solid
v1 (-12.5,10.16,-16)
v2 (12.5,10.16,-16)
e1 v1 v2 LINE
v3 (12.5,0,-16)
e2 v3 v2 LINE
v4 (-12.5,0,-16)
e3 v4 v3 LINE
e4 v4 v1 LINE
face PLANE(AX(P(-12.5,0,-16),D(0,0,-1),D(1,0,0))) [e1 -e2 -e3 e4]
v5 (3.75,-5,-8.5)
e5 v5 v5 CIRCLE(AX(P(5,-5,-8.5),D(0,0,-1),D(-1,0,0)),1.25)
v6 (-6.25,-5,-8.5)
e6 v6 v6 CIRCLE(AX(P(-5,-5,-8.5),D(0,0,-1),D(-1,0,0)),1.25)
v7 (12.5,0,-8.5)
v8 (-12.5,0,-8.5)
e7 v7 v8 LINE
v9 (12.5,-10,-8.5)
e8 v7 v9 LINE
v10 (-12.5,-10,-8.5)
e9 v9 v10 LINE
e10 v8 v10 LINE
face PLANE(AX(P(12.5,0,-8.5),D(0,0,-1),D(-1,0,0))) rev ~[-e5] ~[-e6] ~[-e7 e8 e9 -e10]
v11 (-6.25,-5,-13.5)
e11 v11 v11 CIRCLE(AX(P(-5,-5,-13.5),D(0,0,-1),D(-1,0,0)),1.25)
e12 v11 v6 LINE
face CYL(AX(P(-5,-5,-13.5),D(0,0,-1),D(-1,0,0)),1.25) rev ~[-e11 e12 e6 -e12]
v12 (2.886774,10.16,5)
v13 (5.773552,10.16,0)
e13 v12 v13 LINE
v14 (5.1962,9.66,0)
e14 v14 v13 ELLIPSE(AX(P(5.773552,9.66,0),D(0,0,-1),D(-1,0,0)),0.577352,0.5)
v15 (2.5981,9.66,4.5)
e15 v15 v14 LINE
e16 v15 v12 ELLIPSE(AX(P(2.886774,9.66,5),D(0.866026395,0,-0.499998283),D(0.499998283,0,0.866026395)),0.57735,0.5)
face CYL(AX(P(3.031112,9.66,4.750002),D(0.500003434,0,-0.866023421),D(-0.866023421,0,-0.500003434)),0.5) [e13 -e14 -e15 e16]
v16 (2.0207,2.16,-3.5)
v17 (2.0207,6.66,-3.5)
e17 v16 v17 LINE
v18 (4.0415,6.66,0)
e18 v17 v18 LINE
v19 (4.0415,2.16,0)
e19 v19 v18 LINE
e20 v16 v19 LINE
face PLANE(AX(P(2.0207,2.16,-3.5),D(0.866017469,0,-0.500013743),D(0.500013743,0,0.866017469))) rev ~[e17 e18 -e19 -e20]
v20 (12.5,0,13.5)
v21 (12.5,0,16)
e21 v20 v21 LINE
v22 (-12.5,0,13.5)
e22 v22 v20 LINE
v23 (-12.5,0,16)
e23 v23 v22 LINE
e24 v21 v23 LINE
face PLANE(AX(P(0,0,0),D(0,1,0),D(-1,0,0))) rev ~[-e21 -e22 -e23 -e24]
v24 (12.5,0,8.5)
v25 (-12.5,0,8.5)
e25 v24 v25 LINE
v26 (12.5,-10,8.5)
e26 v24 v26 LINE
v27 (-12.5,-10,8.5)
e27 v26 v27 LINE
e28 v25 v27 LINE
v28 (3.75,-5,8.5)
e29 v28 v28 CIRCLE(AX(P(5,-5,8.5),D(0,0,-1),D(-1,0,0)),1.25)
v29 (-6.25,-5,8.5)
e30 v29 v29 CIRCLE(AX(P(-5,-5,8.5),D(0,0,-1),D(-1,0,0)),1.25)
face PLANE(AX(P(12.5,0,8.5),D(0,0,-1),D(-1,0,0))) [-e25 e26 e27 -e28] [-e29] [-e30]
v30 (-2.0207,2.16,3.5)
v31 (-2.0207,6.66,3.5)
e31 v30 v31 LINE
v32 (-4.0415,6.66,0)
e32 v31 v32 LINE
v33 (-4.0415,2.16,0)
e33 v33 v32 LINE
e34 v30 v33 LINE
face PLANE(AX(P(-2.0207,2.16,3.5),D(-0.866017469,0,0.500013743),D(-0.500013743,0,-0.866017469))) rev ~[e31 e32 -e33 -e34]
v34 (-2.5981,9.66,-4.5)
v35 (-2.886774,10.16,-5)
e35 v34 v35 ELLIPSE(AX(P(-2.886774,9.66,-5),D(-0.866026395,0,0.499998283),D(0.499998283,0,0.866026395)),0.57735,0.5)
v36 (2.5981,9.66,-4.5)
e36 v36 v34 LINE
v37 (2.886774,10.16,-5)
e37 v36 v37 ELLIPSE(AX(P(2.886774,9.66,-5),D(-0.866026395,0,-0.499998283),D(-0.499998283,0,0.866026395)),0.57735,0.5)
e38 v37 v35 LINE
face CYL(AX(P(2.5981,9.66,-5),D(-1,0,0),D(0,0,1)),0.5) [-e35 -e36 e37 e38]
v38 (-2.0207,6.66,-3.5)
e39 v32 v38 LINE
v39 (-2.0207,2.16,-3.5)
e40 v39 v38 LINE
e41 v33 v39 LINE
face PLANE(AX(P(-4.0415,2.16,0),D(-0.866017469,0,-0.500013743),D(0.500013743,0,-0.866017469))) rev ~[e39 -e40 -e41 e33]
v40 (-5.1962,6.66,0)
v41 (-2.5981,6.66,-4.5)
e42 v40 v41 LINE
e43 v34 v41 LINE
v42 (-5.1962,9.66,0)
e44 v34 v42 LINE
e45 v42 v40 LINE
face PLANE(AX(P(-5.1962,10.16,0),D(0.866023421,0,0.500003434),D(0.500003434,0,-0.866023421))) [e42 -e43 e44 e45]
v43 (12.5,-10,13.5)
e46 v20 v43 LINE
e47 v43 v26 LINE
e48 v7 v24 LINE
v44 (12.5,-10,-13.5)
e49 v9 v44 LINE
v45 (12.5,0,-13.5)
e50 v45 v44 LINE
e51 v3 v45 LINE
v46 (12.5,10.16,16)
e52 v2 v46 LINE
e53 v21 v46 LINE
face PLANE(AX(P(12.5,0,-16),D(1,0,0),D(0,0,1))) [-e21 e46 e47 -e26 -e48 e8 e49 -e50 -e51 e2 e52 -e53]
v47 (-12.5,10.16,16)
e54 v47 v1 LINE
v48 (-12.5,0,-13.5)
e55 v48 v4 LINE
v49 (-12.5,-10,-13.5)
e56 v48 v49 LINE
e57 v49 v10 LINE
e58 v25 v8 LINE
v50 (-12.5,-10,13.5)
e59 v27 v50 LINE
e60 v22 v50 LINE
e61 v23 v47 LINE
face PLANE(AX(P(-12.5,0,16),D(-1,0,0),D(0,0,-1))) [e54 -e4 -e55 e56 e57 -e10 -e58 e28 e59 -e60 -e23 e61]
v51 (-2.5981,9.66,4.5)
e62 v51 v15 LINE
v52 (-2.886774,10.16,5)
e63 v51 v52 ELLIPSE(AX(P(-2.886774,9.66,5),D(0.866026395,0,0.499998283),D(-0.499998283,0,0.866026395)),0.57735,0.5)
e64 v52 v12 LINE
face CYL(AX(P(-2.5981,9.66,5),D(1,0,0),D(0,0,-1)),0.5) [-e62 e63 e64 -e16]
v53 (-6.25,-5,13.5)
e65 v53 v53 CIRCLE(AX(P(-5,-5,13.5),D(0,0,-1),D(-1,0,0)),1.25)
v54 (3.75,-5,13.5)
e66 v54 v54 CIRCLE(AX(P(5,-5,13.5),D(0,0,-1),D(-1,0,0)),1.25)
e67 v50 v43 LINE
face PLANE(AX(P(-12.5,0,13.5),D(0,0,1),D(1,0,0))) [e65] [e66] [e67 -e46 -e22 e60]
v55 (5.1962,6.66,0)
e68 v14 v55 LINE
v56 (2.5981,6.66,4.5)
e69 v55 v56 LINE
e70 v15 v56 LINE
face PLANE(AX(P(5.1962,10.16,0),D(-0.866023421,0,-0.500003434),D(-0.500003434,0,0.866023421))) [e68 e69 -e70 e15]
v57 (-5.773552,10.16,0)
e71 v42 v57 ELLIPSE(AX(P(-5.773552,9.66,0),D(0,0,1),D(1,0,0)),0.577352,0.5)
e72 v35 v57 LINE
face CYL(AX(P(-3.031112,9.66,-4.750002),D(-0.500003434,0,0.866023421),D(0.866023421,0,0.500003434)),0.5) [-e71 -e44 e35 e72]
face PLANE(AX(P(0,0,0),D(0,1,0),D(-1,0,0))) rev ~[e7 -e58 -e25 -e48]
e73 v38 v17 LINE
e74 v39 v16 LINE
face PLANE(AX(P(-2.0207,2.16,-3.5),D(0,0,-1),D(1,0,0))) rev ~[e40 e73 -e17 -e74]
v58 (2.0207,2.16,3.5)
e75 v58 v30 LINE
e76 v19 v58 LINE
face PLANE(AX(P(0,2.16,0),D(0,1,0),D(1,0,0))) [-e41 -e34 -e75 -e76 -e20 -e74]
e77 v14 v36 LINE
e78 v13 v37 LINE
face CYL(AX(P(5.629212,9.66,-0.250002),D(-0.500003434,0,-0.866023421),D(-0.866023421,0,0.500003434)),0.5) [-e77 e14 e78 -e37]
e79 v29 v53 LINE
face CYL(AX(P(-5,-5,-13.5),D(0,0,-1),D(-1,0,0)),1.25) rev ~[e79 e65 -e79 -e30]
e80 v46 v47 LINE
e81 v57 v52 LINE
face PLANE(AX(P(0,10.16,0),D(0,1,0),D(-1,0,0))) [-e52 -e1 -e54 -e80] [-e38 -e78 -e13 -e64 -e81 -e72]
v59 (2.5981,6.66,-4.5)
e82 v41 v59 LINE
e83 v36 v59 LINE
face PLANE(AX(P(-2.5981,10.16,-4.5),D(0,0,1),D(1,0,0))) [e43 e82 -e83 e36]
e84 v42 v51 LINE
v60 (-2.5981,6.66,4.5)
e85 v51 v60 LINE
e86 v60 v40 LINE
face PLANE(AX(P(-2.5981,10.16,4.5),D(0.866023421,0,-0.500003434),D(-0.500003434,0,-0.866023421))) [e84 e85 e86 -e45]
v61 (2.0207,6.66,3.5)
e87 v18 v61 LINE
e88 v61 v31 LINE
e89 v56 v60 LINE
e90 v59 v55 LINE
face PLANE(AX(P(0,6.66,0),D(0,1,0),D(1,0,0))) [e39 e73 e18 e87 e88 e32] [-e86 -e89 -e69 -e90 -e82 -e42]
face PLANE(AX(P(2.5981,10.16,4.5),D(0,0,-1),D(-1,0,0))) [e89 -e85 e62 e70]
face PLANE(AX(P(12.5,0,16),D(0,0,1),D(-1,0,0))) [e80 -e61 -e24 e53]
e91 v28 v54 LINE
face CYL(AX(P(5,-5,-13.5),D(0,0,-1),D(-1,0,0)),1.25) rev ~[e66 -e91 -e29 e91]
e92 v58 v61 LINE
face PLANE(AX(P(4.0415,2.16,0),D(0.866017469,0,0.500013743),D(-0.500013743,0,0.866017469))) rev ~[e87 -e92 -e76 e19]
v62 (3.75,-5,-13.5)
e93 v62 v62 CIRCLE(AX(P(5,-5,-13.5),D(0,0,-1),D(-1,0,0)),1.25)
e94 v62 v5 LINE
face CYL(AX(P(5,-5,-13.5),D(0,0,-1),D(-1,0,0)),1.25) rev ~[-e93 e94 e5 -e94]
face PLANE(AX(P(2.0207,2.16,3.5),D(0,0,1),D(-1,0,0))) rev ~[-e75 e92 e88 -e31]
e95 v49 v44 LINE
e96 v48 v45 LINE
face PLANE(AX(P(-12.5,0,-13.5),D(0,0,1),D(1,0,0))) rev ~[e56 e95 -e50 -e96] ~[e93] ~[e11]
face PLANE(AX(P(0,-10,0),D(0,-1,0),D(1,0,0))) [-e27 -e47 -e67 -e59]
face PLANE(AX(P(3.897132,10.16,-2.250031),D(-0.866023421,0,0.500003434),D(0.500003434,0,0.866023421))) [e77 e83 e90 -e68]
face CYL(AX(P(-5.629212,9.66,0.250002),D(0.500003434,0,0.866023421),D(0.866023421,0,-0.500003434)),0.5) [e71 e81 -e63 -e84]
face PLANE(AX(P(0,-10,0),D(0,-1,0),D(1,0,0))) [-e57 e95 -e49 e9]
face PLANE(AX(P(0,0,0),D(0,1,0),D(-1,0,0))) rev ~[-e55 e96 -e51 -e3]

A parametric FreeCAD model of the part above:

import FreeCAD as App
import Part
import Sketcher

V = App.Vector
Q = App.Units.Quantity


def edges_at(feature, points):
    """Names of the edges that pass closest to the given points."""
    edges = feature.Shape.Edges
    near = lambda p: min(range(len(edges)), key=lambda i: edges[i].distToShape(Part.Vertex(*p))[0])
    return sorted({f"Edge{near(p) + 1}" for p in points})

doc = App.newDocument("Part")
params = doc.addObject("Spreadsheet::Sheet", "Params")
for row, (alias, value) in enumerate([
    ("sketch1_width", "25 mm"),
    ("sketch1_height", "32 mm"),
    ("pad1_length", "10.16 mm"),
    ("sketch2_height", "5 mm"),
    ("sketch2_width", "25 mm"),
    ("pad2_length", "10 mm"),
    ("sketch3_diameter", "2.5 mm"),
    ("pocket1_length", "27 mm"),
    ("pocket2_length", "8 mm"),
    ("pad3_length", "4.5 mm"),
    ("fillet_radius", "0.5 mm"),
], start=1):
    params.set(f"A{row}", alias)
    params.set(f"B{row}", "=" + value)
    params.setAlias(f"B{row}", alias)

body = doc.addObject("PartDesign::Body", "Body")

sketch1 = body.newObject("Sketcher::SketchObject", "Sketch")
sketch1.AttachmentSupport = (doc.getObject("XZ_Plane"), [""])
sketch1.MapMode = "FlatFace"
sketch1.addGeometry(Part.LineSegment(V(-12, 16, 0), V(12, 16, 0)), False)
sketch1.addGeometry(Part.LineSegment(V(12, 16, 0), V(12, -16, 0)), False)
sketch1.addGeometry(Part.LineSegment(V(12, -16, 0), V(-12, -16, 0)), False)
sketch1.addGeometry(Part.LineSegment(V(-12, -16, 0), V(-12, 16, 0)), False)
sketch1.addConstraint(Sketcher.Constraint("Coincident", 0, 2, 1, 1))
sketch1.addConstraint(Sketcher.Constraint("Coincident", 1, 2, 2, 1))
sketch1.addConstraint(Sketcher.Constraint("Coincident", 2, 2, 3, 1))
sketch1.addConstraint(Sketcher.Constraint("Coincident", 3, 2, 0, 1))
sketch1.addConstraint(Sketcher.Constraint("Horizontal", 0))
sketch1.addConstraint(Sketcher.Constraint("Vertical", 1))
sketch1.addConstraint(Sketcher.Constraint("Horizontal", 2))
sketch1.addConstraint(Sketcher.Constraint("Vertical", 3))
sketch1.addConstraint(Sketcher.Constraint("Symmetric", 0, 2, 2, 2, -1, 1))
sketch1.addConstraint(Sketcher.Constraint("DistanceX", 0, 1, 0, 2, Q("25 mm")))
sketch1.addConstraint(Sketcher.Constraint("DistanceY", 1, 2, 1, 1, Q("32 mm")))
sketch1.setExpression("Constraints[9]", "Params.sketch1_width")
sketch1.setExpression("Constraints[10]", "Params.sketch1_height")
pad1 = body.newObject("PartDesign::Pad", "Pad")
pad1.Profile = sketch1
pad1.setExpression("Length", "Params.pad1_length")
pad1.Reversed = True

sketch2 = body.newObject("Sketcher::SketchObject", "Sketch001")
sketch2.AttachmentSupport = (doc.getObject("XZ_Plane"), [""])
sketch2.MapMode = "FlatFace"
sketch2.addGeometry(Part.LineSegment(V(-12, -8, 0), V(-12, -14, 0)), False)
sketch2.addGeometry(Part.LineSegment(V(-12, -14, 0), V(12, -14, 0)), False)
sketch2.addGeometry(Part.LineSegment(V(12, -14, 0), V(12, -8, 0)), False)
sketch2.addGeometry(Part.LineSegment(V(12, -8, 0), V(-12, -8, 0)), False)
sketch2.addGeometry(Part.LineSegment(V(-12, 14, 0), V(-12, 8, 0)), False)
sketch2.addGeometry(Part.LineSegment(V(-12, 8, 0), V(12, 8, 0)), False)
sketch2.addGeometry(Part.LineSegment(V(12, 8, 0), V(12, 14, 0)), False)
sketch2.addGeometry(Part.LineSegment(V(12, 14, 0), V(-12, 14, 0)), False)
sketch2.addConstraint(Sketcher.Constraint("Coincident", 0, 2, 1, 1))
sketch2.addConstraint(Sketcher.Constraint("Coincident", 1, 2, 2, 1))
sketch2.addConstraint(Sketcher.Constraint("Coincident", 2, 2, 3, 1))
sketch2.addConstraint(Sketcher.Constraint("Coincident", 3, 2, 0, 1))
sketch2.addConstraint(Sketcher.Constraint("Coincident", 4, 2, 5, 1))
sketch2.addConstraint(Sketcher.Constraint("Coincident", 5, 2, 6, 1))
sketch2.addConstraint(Sketcher.Constraint("Coincident", 6, 2, 7, 1))
sketch2.addConstraint(Sketcher.Constraint("Coincident", 7, 2, 4, 1))
sketch2.addConstraint(Sketcher.Constraint("Vertical", 0))
sketch2.addConstraint(Sketcher.Constraint("Horizontal", 1))
sketch2.addConstraint(Sketcher.Constraint("Vertical", 2))
sketch2.addConstraint(Sketcher.Constraint("Horizontal", 3))
sketch2.addConstraint(Sketcher.Constraint("Vertical", 4))
sketch2.addConstraint(Sketcher.Constraint("Horizontal", 5))
sketch2.addConstraint(Sketcher.Constraint("Vertical", 6))
sketch2.addConstraint(Sketcher.Constraint("Horizontal", 7))
sketch2.addConstraint(Sketcher.Constraint("Symmetric", 2, 2, 4, 2, -1, 1))
sketch2.addConstraint(Sketcher.Constraint("Symmetric", 0, 2, 6, 2, -1, 1))
sketch2.addConstraint(Sketcher.Constraint("Vertical", 3, 2, 4, 2))
sketch2.addConstraint(Sketcher.Constraint("DistanceY", 0, 2, 0, 1, Q("5 mm")))
sketch2.addConstraint(Sketcher.Constraint("DistanceY", 2, 2, -1, 1, Q("8.5 mm")))
sketch2.addConstraint(Sketcher.Constraint("DistanceX", 1, 1, 1, 2, Q("25 mm")))
sketch2.setExpression("Constraints[19]", "Params.sketch2_height")
sketch2.setExpression("Constraints[21]", "Params.sketch2_width")
pad2 = body.newObject("PartDesign::Pad", "Pad001")
pad2.Profile = sketch2
pad2.setExpression("Length", "Params.pad2_length")

sketch3 = body.newObject("Sketcher::SketchObject", "Sketch002")
sketch3.AttachmentSupport = (doc.getObject("XY_Plane"), [""])
sketch3.MapMode = "FlatFace"
sketch3.AttachmentOffset = App.Placement(V(0, 0, -13.5), App.Rotation())
sketch3.addGeometry(Part.Circle(V(-5, -5, 0), V(0, 0, 1), 1.2), False)
sketch3.addGeometry(Part.Circle(V(5, -5, 0), V(0, 0, 1), 1.2), False)
sketch3.addConstraint(Sketcher.Constraint("Equal", 0, 1))
sketch3.addConstraint(Sketcher.Constraint("Symmetric", 0, 3, 1, 3, -2))
sketch3.addConstraint(Sketcher.Constraint("Diameter", 0, Q("2.5 mm")))
sketch3.addConstraint(Sketcher.Constraint("DistanceX", 0, 3, -1, 1, Q("5 mm")))
sketch3.addConstraint(Sketcher.Constraint("DistanceY", 0, 3, -1, 1, Q("5 mm")))
sketch3.setExpression("Constraints[2]", "Params.sketch3_diameter")
pocket1 = body.newObject("PartDesign::Pocket", "Pocket")
pocket1.Profile = sketch3
pocket1.setExpression("Length", "Params.pocket1_length")
pocket1.Reversed = True

sketch4 = body.newObject("Sketcher::SketchObject", "Sketch003")
sketch4.AttachmentSupport = (doc.getObject("XZ_Plane"), [""])
sketch4.MapMode = "FlatFace"
sketch4.AttachmentOffset = App.Placement(V(0, 0, -10.16), App.Rotation())
sketch4.addGeometry(Part.LineSegment(V(5, 0, 0), V(3, -4, 0)), False)
sketch4.addGeometry(Part.LineSegment(V(3, -4, 0), V(-3, -4, 0)), False)
sketch4.addGeometry(Part.LineSegment(V(-3, -4, 0), V(-5, 0, 0)), False)
sketch4.addGeometry(Part.LineSegment(V(-5, 0, 0), V(-3, 4, 0)), False)
sketch4.addGeometry(Part.LineSegment(V(-3, 4, 0), V(3, 4, 0)), False)
sketch4.addGeometry(Part.LineSegment(V(3, 4, 0), V(5, 0, 0)), False)
sketch4.addConstraint(Sketcher.Constraint("Coincident", 0, 2, 1, 1))
sketch4.addConstraint(Sketcher.Constraint("Coincident", 1, 2, 2, 1))
sketch4.addConstraint(Sketcher.Constraint("Coincident", 2, 2, 3, 1))
sketch4.addConstraint(Sketcher.Constraint("Coincident", 3, 2, 4, 1))
sketch4.addConstraint(Sketcher.Constraint("Coincident", 4, 2, 5, 1))
sketch4.addConstraint(Sketcher.Constraint("Coincident", 5, 2, 0, 1))
sketch4.addConstraint(Sketcher.Constraint("Horizontal", 1))
sketch4.addConstraint(Sketcher.Constraint("Horizontal", 4))
sketch4.addConstraint(Sketcher.Constraint("Symmetric", 0, 2, 3, 2, -1, 1))
sketch4.addConstraint(Sketcher.Constraint("Symmetric", 2, 2, 5, 2, -1, 1))
sketch4.addConstraint(Sketcher.Constraint("PointOnObject", 2, 2, -1))
sketch4.addConstraint(Sketcher.Constraint("Parallel", 2, 5))
sketch4.addConstraint(Sketcher.Constraint("Vertical", 1, 2, 3, 2))
sketch4.addConstraint(Sketcher.Constraint("DistanceY", 1, 2, 3, 2, Q("9 mm")))
sketch4.addConstraint(Sketcher.Constraint("Angle", 0, Q("-120.0002 deg")))
sketch4.addConstraint(Sketcher.Constraint("DistanceX", 1, 2, 1, 1, Q("5.1962 mm")))
pocket2 = body.newObject("PartDesign::Pocket", "Pocket001")
pocket2.Profile = sketch4
pocket2.setExpression("Length", "Params.pocket2_length")
pocket2.Reversed = True

sketch5 = body.newObject("Sketcher::SketchObject", "Sketch004")
sketch5.AttachmentSupport = (doc.getObject("XZ_Plane"), [""])
sketch5.MapMode = "FlatFace"
sketch5.AttachmentOffset = App.Placement(V(0, 0, -2.16), App.Rotation())
sketch5.addGeometry(Part.LineSegment(V(5.2, 0, 0), V(2.6, -4.5, 0)), False)
sketch5.addGeometry(Part.LineSegment(V(2.6, -4.5, 0), V(-2.6, -4.5, 0)), False)
sketch5.addGeometry(Part.LineSegment(V(-2.6, -4.5, 0), V(-5.2, 0, 0)), False)
sketch5.addGeometry(Part.LineSegment(V(-5.2, 0, 0), V(-2.6, 4.5, 0)), False)
sketch5.addGeometry(Part.LineSegment(V(-2.6, 4.5, 0), V(2.6, 4.5, 0)), False)
sketch5.addGeometry(Part.LineSegment(V(2.6, 4.5, 0), V(5.2, 0, 0)), False)
sketch5.addGeometry(Part.LineSegment(V(-4, 0, 0), V(-2, -3.5, 0)), False)
sketch5.addGeometry(Part.LineSegment(V(-2, -3.5, 0), V(2, -3.5, 0)), False)
sketch5.addGeometry(Part.LineSegment(V(2, -3.5, 0), V(4, 0, 0)), False)
sketch5.addGeometry(Part.LineSegment(V(4, 0, 0), V(2, 3.5, 0)), False)
sketch5.addGeometry(Part.LineSegment(V(2, 3.5, 0), V(-2, 3.5, 0)), False)
sketch5.addGeometry(Part.LineSegment(V(-2, 3.5, 0), V(-4, 0, 0)), False)
sketch5.addConstraint(Sketcher.Constraint("Coincident", 0, 2, 1, 1))
sketch5.addConstraint(Sketcher.Constraint("Coincident", 1, 2, 2, 1))
sketch5.addConstraint(Sketcher.Constraint("Coincident", 2, 2, 3, 1))
sketch5.addConstraint(Sketcher.Constraint("Coincident", 3, 2, 4, 1))
sketch5.addConstraint(Sketcher.Constraint("Coincident", 4, 2, 5, 1))
sketch5.addConstraint(Sketcher.Constraint("Coincident", 5, 2, 0, 1))
sketch5.addConstraint(Sketcher.Constraint("Coincident", 6, 2, 7, 1))
sketch5.addConstraint(Sketcher.Constraint("Coincident", 7, 2, 8, 1))
sketch5.addConstraint(Sketcher.Constraint("Coincident", 8, 2, 9, 1))
sketch5.addConstraint(Sketcher.Constraint("Coincident", 9, 2, 10, 1))
sketch5.addConstraint(Sketcher.Constraint("Coincident", 10, 2, 11, 1))
sketch5.addConstraint(Sketcher.Constraint("Coincident", 11, 2, 6, 1))
sketch5.addConstraint(Sketcher.Constraint("Horizontal", 1))
sketch5.addConstraint(Sketcher.Constraint("Horizontal", 4))
sketch5.addConstraint(Sketcher.Constraint("Horizontal", 7))
sketch5.addConstraint(Sketcher.Constraint("Horizontal", 10))
sketch5.addConstraint(Sketcher.Constraint("Symmetric", 0, 2, 3, 2, -1, 1))
sketch5.addConstraint(Sketcher.Constraint("Symmetric", 2, 2, 5, 2, -1, 1))
sketch5.addConstraint(Sketcher.Constraint("Symmetric", 6, 2, 9, 2, -1, 1))
sketch5.addConstraint(Sketcher.Constraint("Symmetric", 8, 2, 11, 2, -1, 1))
sketch5.addConstraint(Sketcher.Constraint("PointOnObject", 2, 2, -1))
sketch5.addConstraint(Sketcher.Constraint("PointOnObject", 8, 2, -1))
sketch5.addConstraint(Sketcher.Constraint("Parallel", 2, 5))
sketch5.addConstraint(Sketcher.Constraint("Parallel", 5, 6))
sketch5.addConstraint(Sketcher.Constraint("Parallel", 3, 8))
sketch5.addConstraint(Sketcher.Constraint("Parallel", 8, 11))
sketch5.addConstraint(Sketcher.Constraint("Vertical", 1, 2, 3, 2))
sketch5.addConstraint(Sketcher.Constraint("DistanceY", 1, 2, 6, 2, Q("1 mm")))
sketch5.addConstraint(Sketcher.Constraint("Angle", 0, Q("-120.0002 deg")))
sketch5.addConstraint(Sketcher.Constraint("DistanceY", 1, 2, 3, 2, Q("9 mm")))
sketch5.addConstraint(Sketcher.Constraint("DistanceX", 1, 2, 1, 1, Q("5.1962 mm")))
sketch5.addConstraint(Sketcher.Constraint("DistanceX", 7, 1, 7, 2, Q("4.0414 mm")))
pad3 = body.newObject("PartDesign::Pad", "Pad002")
pad3.Profile = sketch5
pad3.setExpression("Length", "Params.pad3_length")
pad3.Reversed = True
doc.recompute()

fillet = body.newObject("PartDesign::Fillet", "Fillet")
fillet.Base = (pad3, edges_at(pad3, [
    (-3.897, 10.16, 2.25),
    (0, 10.16, 4.5),
    (-3.897, 10.16, -2.25),
    (0, 10.16, -4.5),
    (3.897, 10.16, -2.25),
    (3.897, 10.16, 2.25),
]))
fillet.setExpression("Radius", "Params.fillet_radius")

doc.recompute()
